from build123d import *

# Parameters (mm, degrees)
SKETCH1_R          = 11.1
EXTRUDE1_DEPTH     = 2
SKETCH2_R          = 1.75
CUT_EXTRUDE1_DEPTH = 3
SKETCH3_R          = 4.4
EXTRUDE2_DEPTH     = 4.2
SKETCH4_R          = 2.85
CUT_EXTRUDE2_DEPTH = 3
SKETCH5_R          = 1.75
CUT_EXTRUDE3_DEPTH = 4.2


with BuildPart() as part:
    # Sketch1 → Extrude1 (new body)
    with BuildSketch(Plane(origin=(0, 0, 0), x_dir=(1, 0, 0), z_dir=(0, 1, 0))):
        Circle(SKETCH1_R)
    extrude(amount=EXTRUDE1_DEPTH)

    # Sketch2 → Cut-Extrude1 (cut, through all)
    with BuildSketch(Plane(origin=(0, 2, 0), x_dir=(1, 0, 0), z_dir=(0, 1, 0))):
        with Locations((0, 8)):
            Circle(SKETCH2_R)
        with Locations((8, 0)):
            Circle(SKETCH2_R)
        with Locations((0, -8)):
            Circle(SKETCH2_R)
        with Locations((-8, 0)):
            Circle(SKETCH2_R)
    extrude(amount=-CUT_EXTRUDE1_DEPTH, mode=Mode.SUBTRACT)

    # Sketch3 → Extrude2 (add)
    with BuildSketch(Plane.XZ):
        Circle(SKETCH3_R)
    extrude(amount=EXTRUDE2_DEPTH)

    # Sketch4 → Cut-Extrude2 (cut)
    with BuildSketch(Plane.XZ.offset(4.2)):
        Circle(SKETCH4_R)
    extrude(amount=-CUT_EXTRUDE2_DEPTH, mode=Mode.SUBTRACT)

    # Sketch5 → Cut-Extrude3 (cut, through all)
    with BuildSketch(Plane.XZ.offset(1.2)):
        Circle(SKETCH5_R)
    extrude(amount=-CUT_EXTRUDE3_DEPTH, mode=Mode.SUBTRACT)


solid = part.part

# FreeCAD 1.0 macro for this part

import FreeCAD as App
import Part
import Sketcher
from FreeCAD import Vector
Q = App.Units.Quantity

doc = App.newDocument("Part")
body = doc.addObject("PartDesign::Body", "Body")

sketch1 = body.newObject("Sketcher::SketchObject", "Sketch")
sketch1.AttachmentSupport = (doc.getObject("XZ_Plane"), [""])
sketch1.MapMode = "FlatFace"
sketch1.addGeometry(Part.Circle(Vector(0, 0, 0), Vector(0, 0, 1), 11), False)
sketch1.addConstraint(Sketcher.Constraint("Coincident", 0, 3, -1, 1))
sketch1.addConstraint(Sketcher.Constraint("Diameter", 0, Q("22.2 mm")))
pad1 = body.newObject("PartDesign::Pad", "Pad")
pad1.Profile = sketch1
pad1.Length = 2
pad1.Reversed = True

sketch2 = body.newObject("Sketcher::SketchObject", "Sketch001")
sketch2.AttachmentSupport = (doc.getObject("XZ_Plane"), [""])
sketch2.MapMode = "FlatFace"
sketch2.AttachmentOffset = App.Placement(Vector(0, 0, -2), App.Rotation())
sketch2.addGeometry(Part.Circle(Vector(0, -8, 0), Vector(0, 0, 1), 1.8), False)
sketch2.addGeometry(Part.Circle(Vector(8, 0, 0), Vector(0, 0, 1), 1.8), False)
sketch2.addGeometry(Part.Circle(Vector(0, 8, 0), Vector(0, 0, 1), 1.8), False)
sketch2.addGeometry(Part.Circle(Vector(-8, 0, 0), Vector(0, 0, 1), 1.8), False)
sketch2.addConstraint(Sketcher.Constraint("Equal", 0, 1))
sketch2.addConstraint(Sketcher.Constraint("Equal", 1, 2))
sketch2.addConstraint(Sketcher.Constraint("Equal", 2, 3))
sketch2.addConstraint(Sketcher.Constraint("Symmetric", 0, 3, 2, 3, -1, 1))
sketch2.addConstraint(Sketcher.Constraint("Symmetric", 1, 3, 3, 3, -1, 1))
sketch2.addConstraint(Sketcher.Constraint("PointOnObject", 0, 3, -2))
sketch2.addConstraint(Sketcher.Constraint("PointOnObject", 1, 3, -1))
sketch2.addConstraint(Sketcher.Constraint("Diameter", 0, Q("3.5 mm")))
sketch2.addConstraint(Sketcher.Constraint("DistanceY", 0, 3, -1, 1, Q("8 mm")))
sketch2.addConstraint(Sketcher.Constraint("DistanceX", -1, 1, 1, 3, Q("8 mm")))
pocket1 = body.newObject("PartDesign::Pocket", "Pocket")
pocket1.Profile = sketch2
pocket1.Type = "ThroughAll"
pocket1.Reversed = True

sketch3 = body.newObject("Sketcher::SketchObject", "Sketch002")
sketch3.AttachmentSupport = (doc.getObject("XZ_Plane"), [""])
sketch3.MapMode = "FlatFace"
sketch3.addGeometry(Part.Circle(Vector(0, 0, 0), Vector(0, 0, 1), 4.4), False)
sketch3.addConstraint(Sketcher.Constraint("Coincident", 0, 3, -1, 1))
sketch3.addConstraint(Sketcher.Constraint("Diameter", 0, Q("8.8 mm")))
pad2 = body.newObject("PartDesign::Pad", "Pad001")
pad2.Profile = sketch3
pad2.Length = 4.2

sketch4 = body.newObject("Sketcher::SketchObject", "Sketch003")
sketch4.AttachmentSupport = (doc.getObject("XZ_Plane"), [""])
sketch4.MapMode = "FlatFace"
sketch4.AttachmentOffset = App.Placement(Vector(0, 0, 4.2), App.Rotation())
sketch4.addGeometry(Part.Circle(Vector(0, 0, 0), Vector(0, 0, 1), 2.9), False)
sketch4.addConstraint(Sketcher.Constraint("Coincident", 0, 3, -1, 1))
sketch4.addConstraint(Sketcher.Constraint("Diameter", 0, Q("5.7 mm")))
pocket2 = body.newObject("PartDesign::Pocket", "Pocket001")
pocket2.Profile = sketch4
pocket2.Length = 3

sketch5 = body.newObject("Sketcher::SketchObject", "Sketch004")
sketch5.AttachmentSupport = (doc.getObject("XZ_Plane"), [""])
sketch5.MapMode = "FlatFace"
sketch5.AttachmentOffset = App.Placement(Vector(0, 0, 1.2), App.Rotation())
sketch5.addGeometry(Part.Circle(Vector(0, 0, 0), Vector(0, 0, 1), 1.8), False)
sketch5.addConstraint(Sketcher.Constraint("Coincident", 0, 3, -1, 1))
sketch5.addConstraint(Sketcher.Constraint("Diameter", 0, Q("3.5 mm")))
pocket3 = body.newObject("PartDesign::Pocket", "Pocket002")
pocket3.Profile = sketch5
pocket3.Type = "ThroughAll"

doc.recompute()
